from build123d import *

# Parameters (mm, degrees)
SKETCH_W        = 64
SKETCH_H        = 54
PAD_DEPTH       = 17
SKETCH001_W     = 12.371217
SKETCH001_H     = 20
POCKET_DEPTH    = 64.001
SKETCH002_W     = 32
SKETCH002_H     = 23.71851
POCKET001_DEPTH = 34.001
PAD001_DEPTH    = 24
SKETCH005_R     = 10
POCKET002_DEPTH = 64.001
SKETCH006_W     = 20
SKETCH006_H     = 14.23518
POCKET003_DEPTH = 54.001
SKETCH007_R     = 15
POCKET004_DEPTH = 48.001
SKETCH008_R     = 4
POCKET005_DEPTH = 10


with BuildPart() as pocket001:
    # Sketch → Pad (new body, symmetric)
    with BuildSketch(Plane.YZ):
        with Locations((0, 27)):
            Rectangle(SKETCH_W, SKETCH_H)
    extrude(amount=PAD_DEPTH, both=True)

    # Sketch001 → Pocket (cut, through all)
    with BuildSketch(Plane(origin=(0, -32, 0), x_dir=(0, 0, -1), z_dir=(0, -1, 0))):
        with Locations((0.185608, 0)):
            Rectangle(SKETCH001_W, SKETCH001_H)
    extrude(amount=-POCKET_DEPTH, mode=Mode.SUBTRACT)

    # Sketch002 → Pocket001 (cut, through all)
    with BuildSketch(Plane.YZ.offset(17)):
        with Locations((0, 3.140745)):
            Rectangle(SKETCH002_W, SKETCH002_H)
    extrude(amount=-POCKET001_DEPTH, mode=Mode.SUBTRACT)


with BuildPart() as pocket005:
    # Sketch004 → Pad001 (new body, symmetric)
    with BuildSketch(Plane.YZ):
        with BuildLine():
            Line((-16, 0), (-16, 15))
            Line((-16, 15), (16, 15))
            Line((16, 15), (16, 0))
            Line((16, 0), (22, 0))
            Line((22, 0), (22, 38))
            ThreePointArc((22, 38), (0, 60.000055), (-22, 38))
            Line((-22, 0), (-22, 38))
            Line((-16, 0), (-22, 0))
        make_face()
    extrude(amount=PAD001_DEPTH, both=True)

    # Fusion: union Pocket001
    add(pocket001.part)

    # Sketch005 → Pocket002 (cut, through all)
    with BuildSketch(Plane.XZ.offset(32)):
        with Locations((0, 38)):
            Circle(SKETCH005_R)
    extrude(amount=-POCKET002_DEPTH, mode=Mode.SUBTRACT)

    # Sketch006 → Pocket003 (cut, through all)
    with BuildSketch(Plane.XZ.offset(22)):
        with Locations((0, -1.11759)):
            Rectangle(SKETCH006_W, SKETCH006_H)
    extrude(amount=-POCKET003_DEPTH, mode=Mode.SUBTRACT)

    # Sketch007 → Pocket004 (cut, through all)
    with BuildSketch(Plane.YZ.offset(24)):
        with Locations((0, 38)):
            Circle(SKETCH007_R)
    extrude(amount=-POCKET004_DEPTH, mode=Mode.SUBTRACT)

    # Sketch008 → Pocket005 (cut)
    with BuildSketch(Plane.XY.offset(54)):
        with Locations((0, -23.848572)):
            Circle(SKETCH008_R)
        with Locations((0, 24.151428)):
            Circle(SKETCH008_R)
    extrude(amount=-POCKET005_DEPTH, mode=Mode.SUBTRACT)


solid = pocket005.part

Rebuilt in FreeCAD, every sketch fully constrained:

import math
import FreeCAD as App
import Part
import Sketcher
Q = App.Units.Quantity


def add_polygon(sketch, points):
    """Adds a closed chain of lines whose ends are joined by coincident constraints."""
    first, n = sketch.GeometryCount, len(points)
    for a, b in zip(points, points[1:] + points[:1]):
        sketch.addGeometry(Part.LineSegment(App.Vector(*a, 0), App.Vector(*b, 0)), False)
    for i in range(n):
        sketch.addConstraint(Sketcher.Constraint("Coincident", first + i, 2, first + (i + 1) % n, 1))

doc = App.newDocument("Part")
body = doc.addObject("PartDesign::Body", "Body")

# Sketch on YZ plane
sketch1 = body.newObject("Sketcher::SketchObject", "Sketch")
sketch1.AttachmentSupport = (doc.getObject("YZ_Plane"), [""])
sketch1.MapMode = "FlatFace"
add_polygon(sketch1, [(-32, 54), (-32, 0), (32, 0), (32, 54)])  # lines 0-3
sketch1.addConstraint(Sketcher.Constraint("Vertical", 0))
sketch1.addConstraint(Sketcher.Constraint("Horizontal", 1))
sketch1.addConstraint(Sketcher.Constraint("Vertical", 2))
sketch1.addConstraint(Sketcher.Constraint("Horizontal", 3))
sketch1.addConstraint(Sketcher.Constraint("Symmetric", 0, 2, 1, 2, -1, 1))
sketch1.addConstraint(Sketcher.Constraint("DistanceX", 1, 1, 1, 2, Q("64 mm")))
sketch1.addConstraint(Sketcher.Constraint("DistanceY", 0, 2, 0, 1, Q("54 mm")))
pad1 = body.newObject("PartDesign::Pad", "Pad")
pad1.Profile = sketch1
pad1.Length = 34
pad1.Midplane = True

# Sketch on XZ plane
sketch2 = body.newObject("Sketcher::SketchObject", "Sketch001")
sketch2.AttachmentSupport = (doc.getObject("XZ_Plane"), [""])
sketch2.MapMode = "FlatFace"
sketch2.AttachmentOffset = App.Placement(App.Vector(0, 0, 32), App.Rotation())
add_polygon(sketch2, [(10, 6), (-10, 6), (-10, -6), (10, -6)])  # lines 0-3
sketch2.addConstraint(Sketcher.Constraint("Horizontal", 0))
sketch2.addConstraint(Sketcher.Constraint("Vertical", 1))
sketch2.addConstraint(Sketcher.Constraint("Horizontal", 2))
sketch2.addConstraint(Sketcher.Constraint("Vertical", 3))
sketch2.addConstraint(Sketcher.Constraint("DistanceX", 0, 2, 0, 1, Q("20 mm")))
sketch2.addConstraint(Sketcher.Constraint("DistanceX", 0, 2, -1, 1, Q("10 mm")))
sketch2.addConstraint(Sketcher.Constraint("DistanceY", -1, 1, 0, 2, Q("6 mm")))
sketch2.addConstraint(Sketcher.Constraint("DistanceY", 1, 2, 1, 1, Q("12.371217 mm")))
pocket1 = body.newObject("PartDesign::Pocket", "Pocket")
pocket1.Profile = sketch2
pocket1.Type = "ThroughAll"

# Sketch on YZ plane
sketch3 = body.newObject("Sketcher::SketchObject", "Sketch002")
sketch3.AttachmentSupport = (doc.getObject("YZ_Plane"), [""])
sketch3.MapMode = "FlatFace"
sketch3.AttachmentOffset = App.Placement(App.Vector(0, 0, 17), App.Rotation())
add_polygon(sketch3, [(-16, 15), (-16, -9), (16, -9), (16, 15)])  # lines 0-3
sketch3.addConstraint(Sketcher.Constraint("Vertical", 0))
sketch3.addConstraint(Sketcher.Constraint("Horizontal", 1))
sketch3.addConstraint(Sketcher.Constraint("Vertical", 2))
sketch3.addConstraint(Sketcher.Constraint("Horizontal", 3))
sketch3.addConstraint(Sketcher.Constraint("DistanceX", 1, 1, 1, 2, Q("32 mm")))
sketch3.addConstraint(Sketcher.Constraint("DistanceX", 0, 2, -1, 1, Q("16 mm")))
sketch3.addConstraint(Sketcher.Constraint("DistanceY", -1, 1, 2, 2, Q("15 mm")))
sketch3.addConstraint(Sketcher.Constraint("DistanceY", 0, 2, 0, 1, Q("23.71851 mm")))
pocket2 = body.newObject("PartDesign::Pocket", "Pocket001")
pocket2.Profile = sketch3
pocket2.Type = "ThroughAll"
body2 = doc.addObject("PartDesign::Body", "Body001")

# Sketch on YZ plane
sketch4 = body2.newObject("Sketcher::SketchObject", "Sketch003")
sketch4.AttachmentSupport = (doc.getObject("YZ_Plane001"), [""])
sketch4.MapMode = "FlatFace"
sketch4.addGeometry(Part.LineSegment(App.Vector(-16, 0, 0), App.Vector(-16, 15, 0)), False)
sketch4.addGeometry(Part.LineSegment(App.Vector(-16, 15, 0), App.Vector(16, 15, 0)), False)
sketch4.addGeometry(Part.LineSegment(App.Vector(16, 15, 0), App.Vector(16, 0, 0)), False)
sketch4.addGeometry(Part.LineSegment(App.Vector(16, 0, 0), App.Vector(22, 0, 0)), False)
sketch4.addGeometry(Part.LineSegment(App.Vector(22, 0, 0), App.Vector(22, 38, 0)), False)
sketch4.addGeometry(Part.ArcOfCircle(Part.Circle(App.Vector(0, 38, 0), App.Vector(0, 0, 1), 22), math.radians(0), math.radians(180)), False)
sketch4.addGeometry(Part.LineSegment(App.Vector(-22, 38, 0), App.Vector(-22, 0, 0)), False)
sketch4.addGeometry(Part.LineSegment(App.Vector(-22, 0, 0), App.Vector(-16, 0, 0)), False)
sketch4.addConstraint(Sketcher.Constraint("Coincident", 0, 2, 1, 1))
sketch4.addConstraint(Sketcher.Constraint("Coincident", 1, 2, 2, 1))
sketch4.addConstraint(Sketcher.Constraint("Coincident", 2, 2, 3, 1))
sketch4.addConstraint(Sketcher.Constraint("Coincident", 3, 2, 4, 1))
sketch4.addConstraint(Sketcher.Constraint("Coincident", 4, 2, 5, 1))
sketch4.addConstraint(Sketcher.Constraint("Coincident", 5, 2, 6, 1))
sketch4.addConstraint(Sketcher.Constraint("Coincident", 6, 2, 7, 1))
sketch4.addConstraint(Sketcher.Constraint("Coincident", 7, 2, 0, 1))
sketch4.addConstraint(Sketcher.Constraint("Vertical", 0))
sketch4.addConstraint(Sketcher.Constraint("Horizontal", 1))
sketch4.addConstraint(Sketcher.Constraint("Vertical", 2))
sketch4.addConstraint(Sketcher.Constraint("Horizontal", 3))
sketch4.addConstraint(Sketcher.Constraint("Vertical", 4))
sketch4.addConstraint(Sketcher.Constraint("Vertical", 6))
sketch4.addConstraint(Sketcher.Constraint("Horizontal", 7))
sketch4.addConstraint(Sketcher.Constraint("Symmetric", 3, 2, 6, 2, -1, 1))
sketch4.addConstraint(Sketcher.Constraint("Symmetric", 2, 2, 7, 2, -2))
sketch4.addConstraint(Sketcher.Constraint("Horizontal", 4, 2, 5, 2))
sketch4.addConstraint(Sketcher.Constraint("Radius", 5, Q("22 mm")))
sketch4.addConstraint(Sketcher.Constraint("DistanceX", 1, 1, 1, 2, Q("32 mm")))
sketch4.addConstraint(Sketcher.Constraint("DistanceY", 0, 1, 0, 2, Q("15 mm")))
sketch4.addConstraint(Sketcher.Constraint("DistanceY", 4, 1, 4, 2, Q("38 mm")))
sketch4.addConstraint(Sketcher.Constraint("DistanceY", -1, 1, 5, 3, Q("38.000055 mm")))
pad2 = body2.newObject("PartDesign::Pad", "Pad001")
pad2.Profile = sketch4
pad2.Length = 48
pad2.Midplane = True
doc.recompute()

boolean = body2.newObject("PartDesign::Boolean", "Boolean")
boolean.Type = "Fuse"
boolean.addObjects([body])

# Sketch on XZ plane
sketch5 = body2.newObject("Sketcher::SketchObject", "Sketch004")
sketch5.AttachmentSupport = (doc.getObject("XZ_Plane001"), [""])
sketch5.MapMode = "FlatFace"
sketch5.AttachmentOffset = App.Placement(App.Vector(0, 0, 32), App.Rotation())
sketch5.addGeometry(Part.Circle(App.Vector(0, 38, 0), App.Vector(0, 0, 1), 10), False)
sketch5.addConstraint(Sketcher.Constraint("PointOnObject", 0, 3, -2))
sketch5.addConstraint(Sketcher.Constraint("Diameter", 0, Q("20 mm")))
sketch5.addConstraint(Sketcher.Constraint("DistanceY", -1, 1, 0, 3, Q("38 mm")))
pocket3 = body2.newObject("PartDesign::Pocket", "Pocket002")
pocket3.Profile = sketch5
pocket3.Type = "ThroughAll"

# Sketch on XZ plane
sketch6 = body2.newObject("Sketcher::SketchObject", "Sketch005")
sketch6.AttachmentSupport = (doc.getObject("XZ_Plane001"), [""])
sketch6.MapMode = "FlatFace"
sketch6.AttachmentOffset = App.Placement(App.Vector(0, 0, 22), App.Rotation())
add_polygon(sketch6, [(-10, 6), (-10, -8), (10, -8), (10, 6)])  # lines 0-3
sketch6.addConstraint(Sketcher.Constraint("Vertical", 0))
sketch6.addConstraint(Sketcher.Constraint("Horizontal", 1))
sketch6.addConstraint(Sketcher.Constraint("Vertical", 2))
sketch6.addConstraint(Sketcher.Constraint("Horizontal", 3))
sketch6.addConstraint(Sketcher.Constraint("DistanceX", 1, 1, 1, 2, Q("20 mm")))
sketch6.addConstraint(Sketcher.Constraint("DistanceX", 0, 2, -1, 1, Q("10 mm")))
sketch6.addConstraint(Sketcher.Constraint("DistanceY", -1, 1, 2, 2, Q("6 mm")))
sketch6.addConstraint(Sketcher.Constraint("DistanceY", 0, 2, 0, 1, Q("14.23518 mm")))
pocket4 = body2.newObject("PartDesign::Pocket", "Pocket003")
pocket4.Profile = sketch6
pocket4.Type = "ThroughAll"

# Sketch on YZ plane
sketch7 = body2.newObject("Sketcher::SketchObject", "Sketch006")
sketch7.AttachmentSupport = (doc.getObject("YZ_Plane001"), [""])
sketch7.MapMode = "FlatFace"
sketch7.AttachmentOffset = App.Placement(App.Vector(0, 0, 24), App.Rotation())
sketch7.addGeometry(Part.Circle(App.Vector(0, 38, 0), App.Vector(0, 0, 1), 15), False)
sketch7.addConstraint(Sketcher.Constraint("PointOnObject", 0, 3, -2))
sketch7.addConstraint(Sketcher.Constraint("Diameter", 0, Q("30 mm")))
sketch7.addConstraint(Sketcher.Constraint("DistanceY", -1, 1, 0, 3, Q("38 mm")))
pocket5 = body2.newObject("PartDesign::Pocket", "Pocket004")
pocket5.Profile = sketch7
pocket5.Type = "ThroughAll"

# Sketch on XY plane
sketch8 = body2.newObject("Sketcher::SketchObject", "Sketch007")
sketch8.AttachmentSupport = (doc.getObject("XY_Plane001"), [""])
sketch8.MapMode = "FlatFace"
sketch8.AttachmentOffset = App.Placement(App.Vector(0, 0, 54), App.Rotation())
sketch8.addGeometry(Part.Circle(App.Vector(0, -23.8, 0), App.Vector(0, 0, 1), 4), False)
sketch8.addGeometry(Part.Circle(App.Vector(0, 24.2, 0), App.Vector(0, 0, 1), 4), False)
sketch8.addConstraint(Sketcher.Constraint("Equal", 0, 1))
sketch8.addConstraint(Sketcher.Constraint("PointOnObject", 0, 3, -2))
sketch8.addConstraint(Sketcher.Constraint("PointOnObject", 1, 3, -2))
sketch8.addConstraint(Sketcher.Constraint("Diameter", 0, Q("8 mm")))
sketch8.addConstraint(Sketcher.Constraint("DistanceY", 0, 3, 1, 3, Q("48 mm")))
sketch8.addConstraint(Sketcher.Constraint("DistanceY", 0, 3, -1, 1, Q("23.848572 mm")))
pocket6 = body2.newObject("PartDesign::Pocket", "Pocket005")
pocket6.Profile = sketch8
pocket6.Length = 10

doc.recompute()
